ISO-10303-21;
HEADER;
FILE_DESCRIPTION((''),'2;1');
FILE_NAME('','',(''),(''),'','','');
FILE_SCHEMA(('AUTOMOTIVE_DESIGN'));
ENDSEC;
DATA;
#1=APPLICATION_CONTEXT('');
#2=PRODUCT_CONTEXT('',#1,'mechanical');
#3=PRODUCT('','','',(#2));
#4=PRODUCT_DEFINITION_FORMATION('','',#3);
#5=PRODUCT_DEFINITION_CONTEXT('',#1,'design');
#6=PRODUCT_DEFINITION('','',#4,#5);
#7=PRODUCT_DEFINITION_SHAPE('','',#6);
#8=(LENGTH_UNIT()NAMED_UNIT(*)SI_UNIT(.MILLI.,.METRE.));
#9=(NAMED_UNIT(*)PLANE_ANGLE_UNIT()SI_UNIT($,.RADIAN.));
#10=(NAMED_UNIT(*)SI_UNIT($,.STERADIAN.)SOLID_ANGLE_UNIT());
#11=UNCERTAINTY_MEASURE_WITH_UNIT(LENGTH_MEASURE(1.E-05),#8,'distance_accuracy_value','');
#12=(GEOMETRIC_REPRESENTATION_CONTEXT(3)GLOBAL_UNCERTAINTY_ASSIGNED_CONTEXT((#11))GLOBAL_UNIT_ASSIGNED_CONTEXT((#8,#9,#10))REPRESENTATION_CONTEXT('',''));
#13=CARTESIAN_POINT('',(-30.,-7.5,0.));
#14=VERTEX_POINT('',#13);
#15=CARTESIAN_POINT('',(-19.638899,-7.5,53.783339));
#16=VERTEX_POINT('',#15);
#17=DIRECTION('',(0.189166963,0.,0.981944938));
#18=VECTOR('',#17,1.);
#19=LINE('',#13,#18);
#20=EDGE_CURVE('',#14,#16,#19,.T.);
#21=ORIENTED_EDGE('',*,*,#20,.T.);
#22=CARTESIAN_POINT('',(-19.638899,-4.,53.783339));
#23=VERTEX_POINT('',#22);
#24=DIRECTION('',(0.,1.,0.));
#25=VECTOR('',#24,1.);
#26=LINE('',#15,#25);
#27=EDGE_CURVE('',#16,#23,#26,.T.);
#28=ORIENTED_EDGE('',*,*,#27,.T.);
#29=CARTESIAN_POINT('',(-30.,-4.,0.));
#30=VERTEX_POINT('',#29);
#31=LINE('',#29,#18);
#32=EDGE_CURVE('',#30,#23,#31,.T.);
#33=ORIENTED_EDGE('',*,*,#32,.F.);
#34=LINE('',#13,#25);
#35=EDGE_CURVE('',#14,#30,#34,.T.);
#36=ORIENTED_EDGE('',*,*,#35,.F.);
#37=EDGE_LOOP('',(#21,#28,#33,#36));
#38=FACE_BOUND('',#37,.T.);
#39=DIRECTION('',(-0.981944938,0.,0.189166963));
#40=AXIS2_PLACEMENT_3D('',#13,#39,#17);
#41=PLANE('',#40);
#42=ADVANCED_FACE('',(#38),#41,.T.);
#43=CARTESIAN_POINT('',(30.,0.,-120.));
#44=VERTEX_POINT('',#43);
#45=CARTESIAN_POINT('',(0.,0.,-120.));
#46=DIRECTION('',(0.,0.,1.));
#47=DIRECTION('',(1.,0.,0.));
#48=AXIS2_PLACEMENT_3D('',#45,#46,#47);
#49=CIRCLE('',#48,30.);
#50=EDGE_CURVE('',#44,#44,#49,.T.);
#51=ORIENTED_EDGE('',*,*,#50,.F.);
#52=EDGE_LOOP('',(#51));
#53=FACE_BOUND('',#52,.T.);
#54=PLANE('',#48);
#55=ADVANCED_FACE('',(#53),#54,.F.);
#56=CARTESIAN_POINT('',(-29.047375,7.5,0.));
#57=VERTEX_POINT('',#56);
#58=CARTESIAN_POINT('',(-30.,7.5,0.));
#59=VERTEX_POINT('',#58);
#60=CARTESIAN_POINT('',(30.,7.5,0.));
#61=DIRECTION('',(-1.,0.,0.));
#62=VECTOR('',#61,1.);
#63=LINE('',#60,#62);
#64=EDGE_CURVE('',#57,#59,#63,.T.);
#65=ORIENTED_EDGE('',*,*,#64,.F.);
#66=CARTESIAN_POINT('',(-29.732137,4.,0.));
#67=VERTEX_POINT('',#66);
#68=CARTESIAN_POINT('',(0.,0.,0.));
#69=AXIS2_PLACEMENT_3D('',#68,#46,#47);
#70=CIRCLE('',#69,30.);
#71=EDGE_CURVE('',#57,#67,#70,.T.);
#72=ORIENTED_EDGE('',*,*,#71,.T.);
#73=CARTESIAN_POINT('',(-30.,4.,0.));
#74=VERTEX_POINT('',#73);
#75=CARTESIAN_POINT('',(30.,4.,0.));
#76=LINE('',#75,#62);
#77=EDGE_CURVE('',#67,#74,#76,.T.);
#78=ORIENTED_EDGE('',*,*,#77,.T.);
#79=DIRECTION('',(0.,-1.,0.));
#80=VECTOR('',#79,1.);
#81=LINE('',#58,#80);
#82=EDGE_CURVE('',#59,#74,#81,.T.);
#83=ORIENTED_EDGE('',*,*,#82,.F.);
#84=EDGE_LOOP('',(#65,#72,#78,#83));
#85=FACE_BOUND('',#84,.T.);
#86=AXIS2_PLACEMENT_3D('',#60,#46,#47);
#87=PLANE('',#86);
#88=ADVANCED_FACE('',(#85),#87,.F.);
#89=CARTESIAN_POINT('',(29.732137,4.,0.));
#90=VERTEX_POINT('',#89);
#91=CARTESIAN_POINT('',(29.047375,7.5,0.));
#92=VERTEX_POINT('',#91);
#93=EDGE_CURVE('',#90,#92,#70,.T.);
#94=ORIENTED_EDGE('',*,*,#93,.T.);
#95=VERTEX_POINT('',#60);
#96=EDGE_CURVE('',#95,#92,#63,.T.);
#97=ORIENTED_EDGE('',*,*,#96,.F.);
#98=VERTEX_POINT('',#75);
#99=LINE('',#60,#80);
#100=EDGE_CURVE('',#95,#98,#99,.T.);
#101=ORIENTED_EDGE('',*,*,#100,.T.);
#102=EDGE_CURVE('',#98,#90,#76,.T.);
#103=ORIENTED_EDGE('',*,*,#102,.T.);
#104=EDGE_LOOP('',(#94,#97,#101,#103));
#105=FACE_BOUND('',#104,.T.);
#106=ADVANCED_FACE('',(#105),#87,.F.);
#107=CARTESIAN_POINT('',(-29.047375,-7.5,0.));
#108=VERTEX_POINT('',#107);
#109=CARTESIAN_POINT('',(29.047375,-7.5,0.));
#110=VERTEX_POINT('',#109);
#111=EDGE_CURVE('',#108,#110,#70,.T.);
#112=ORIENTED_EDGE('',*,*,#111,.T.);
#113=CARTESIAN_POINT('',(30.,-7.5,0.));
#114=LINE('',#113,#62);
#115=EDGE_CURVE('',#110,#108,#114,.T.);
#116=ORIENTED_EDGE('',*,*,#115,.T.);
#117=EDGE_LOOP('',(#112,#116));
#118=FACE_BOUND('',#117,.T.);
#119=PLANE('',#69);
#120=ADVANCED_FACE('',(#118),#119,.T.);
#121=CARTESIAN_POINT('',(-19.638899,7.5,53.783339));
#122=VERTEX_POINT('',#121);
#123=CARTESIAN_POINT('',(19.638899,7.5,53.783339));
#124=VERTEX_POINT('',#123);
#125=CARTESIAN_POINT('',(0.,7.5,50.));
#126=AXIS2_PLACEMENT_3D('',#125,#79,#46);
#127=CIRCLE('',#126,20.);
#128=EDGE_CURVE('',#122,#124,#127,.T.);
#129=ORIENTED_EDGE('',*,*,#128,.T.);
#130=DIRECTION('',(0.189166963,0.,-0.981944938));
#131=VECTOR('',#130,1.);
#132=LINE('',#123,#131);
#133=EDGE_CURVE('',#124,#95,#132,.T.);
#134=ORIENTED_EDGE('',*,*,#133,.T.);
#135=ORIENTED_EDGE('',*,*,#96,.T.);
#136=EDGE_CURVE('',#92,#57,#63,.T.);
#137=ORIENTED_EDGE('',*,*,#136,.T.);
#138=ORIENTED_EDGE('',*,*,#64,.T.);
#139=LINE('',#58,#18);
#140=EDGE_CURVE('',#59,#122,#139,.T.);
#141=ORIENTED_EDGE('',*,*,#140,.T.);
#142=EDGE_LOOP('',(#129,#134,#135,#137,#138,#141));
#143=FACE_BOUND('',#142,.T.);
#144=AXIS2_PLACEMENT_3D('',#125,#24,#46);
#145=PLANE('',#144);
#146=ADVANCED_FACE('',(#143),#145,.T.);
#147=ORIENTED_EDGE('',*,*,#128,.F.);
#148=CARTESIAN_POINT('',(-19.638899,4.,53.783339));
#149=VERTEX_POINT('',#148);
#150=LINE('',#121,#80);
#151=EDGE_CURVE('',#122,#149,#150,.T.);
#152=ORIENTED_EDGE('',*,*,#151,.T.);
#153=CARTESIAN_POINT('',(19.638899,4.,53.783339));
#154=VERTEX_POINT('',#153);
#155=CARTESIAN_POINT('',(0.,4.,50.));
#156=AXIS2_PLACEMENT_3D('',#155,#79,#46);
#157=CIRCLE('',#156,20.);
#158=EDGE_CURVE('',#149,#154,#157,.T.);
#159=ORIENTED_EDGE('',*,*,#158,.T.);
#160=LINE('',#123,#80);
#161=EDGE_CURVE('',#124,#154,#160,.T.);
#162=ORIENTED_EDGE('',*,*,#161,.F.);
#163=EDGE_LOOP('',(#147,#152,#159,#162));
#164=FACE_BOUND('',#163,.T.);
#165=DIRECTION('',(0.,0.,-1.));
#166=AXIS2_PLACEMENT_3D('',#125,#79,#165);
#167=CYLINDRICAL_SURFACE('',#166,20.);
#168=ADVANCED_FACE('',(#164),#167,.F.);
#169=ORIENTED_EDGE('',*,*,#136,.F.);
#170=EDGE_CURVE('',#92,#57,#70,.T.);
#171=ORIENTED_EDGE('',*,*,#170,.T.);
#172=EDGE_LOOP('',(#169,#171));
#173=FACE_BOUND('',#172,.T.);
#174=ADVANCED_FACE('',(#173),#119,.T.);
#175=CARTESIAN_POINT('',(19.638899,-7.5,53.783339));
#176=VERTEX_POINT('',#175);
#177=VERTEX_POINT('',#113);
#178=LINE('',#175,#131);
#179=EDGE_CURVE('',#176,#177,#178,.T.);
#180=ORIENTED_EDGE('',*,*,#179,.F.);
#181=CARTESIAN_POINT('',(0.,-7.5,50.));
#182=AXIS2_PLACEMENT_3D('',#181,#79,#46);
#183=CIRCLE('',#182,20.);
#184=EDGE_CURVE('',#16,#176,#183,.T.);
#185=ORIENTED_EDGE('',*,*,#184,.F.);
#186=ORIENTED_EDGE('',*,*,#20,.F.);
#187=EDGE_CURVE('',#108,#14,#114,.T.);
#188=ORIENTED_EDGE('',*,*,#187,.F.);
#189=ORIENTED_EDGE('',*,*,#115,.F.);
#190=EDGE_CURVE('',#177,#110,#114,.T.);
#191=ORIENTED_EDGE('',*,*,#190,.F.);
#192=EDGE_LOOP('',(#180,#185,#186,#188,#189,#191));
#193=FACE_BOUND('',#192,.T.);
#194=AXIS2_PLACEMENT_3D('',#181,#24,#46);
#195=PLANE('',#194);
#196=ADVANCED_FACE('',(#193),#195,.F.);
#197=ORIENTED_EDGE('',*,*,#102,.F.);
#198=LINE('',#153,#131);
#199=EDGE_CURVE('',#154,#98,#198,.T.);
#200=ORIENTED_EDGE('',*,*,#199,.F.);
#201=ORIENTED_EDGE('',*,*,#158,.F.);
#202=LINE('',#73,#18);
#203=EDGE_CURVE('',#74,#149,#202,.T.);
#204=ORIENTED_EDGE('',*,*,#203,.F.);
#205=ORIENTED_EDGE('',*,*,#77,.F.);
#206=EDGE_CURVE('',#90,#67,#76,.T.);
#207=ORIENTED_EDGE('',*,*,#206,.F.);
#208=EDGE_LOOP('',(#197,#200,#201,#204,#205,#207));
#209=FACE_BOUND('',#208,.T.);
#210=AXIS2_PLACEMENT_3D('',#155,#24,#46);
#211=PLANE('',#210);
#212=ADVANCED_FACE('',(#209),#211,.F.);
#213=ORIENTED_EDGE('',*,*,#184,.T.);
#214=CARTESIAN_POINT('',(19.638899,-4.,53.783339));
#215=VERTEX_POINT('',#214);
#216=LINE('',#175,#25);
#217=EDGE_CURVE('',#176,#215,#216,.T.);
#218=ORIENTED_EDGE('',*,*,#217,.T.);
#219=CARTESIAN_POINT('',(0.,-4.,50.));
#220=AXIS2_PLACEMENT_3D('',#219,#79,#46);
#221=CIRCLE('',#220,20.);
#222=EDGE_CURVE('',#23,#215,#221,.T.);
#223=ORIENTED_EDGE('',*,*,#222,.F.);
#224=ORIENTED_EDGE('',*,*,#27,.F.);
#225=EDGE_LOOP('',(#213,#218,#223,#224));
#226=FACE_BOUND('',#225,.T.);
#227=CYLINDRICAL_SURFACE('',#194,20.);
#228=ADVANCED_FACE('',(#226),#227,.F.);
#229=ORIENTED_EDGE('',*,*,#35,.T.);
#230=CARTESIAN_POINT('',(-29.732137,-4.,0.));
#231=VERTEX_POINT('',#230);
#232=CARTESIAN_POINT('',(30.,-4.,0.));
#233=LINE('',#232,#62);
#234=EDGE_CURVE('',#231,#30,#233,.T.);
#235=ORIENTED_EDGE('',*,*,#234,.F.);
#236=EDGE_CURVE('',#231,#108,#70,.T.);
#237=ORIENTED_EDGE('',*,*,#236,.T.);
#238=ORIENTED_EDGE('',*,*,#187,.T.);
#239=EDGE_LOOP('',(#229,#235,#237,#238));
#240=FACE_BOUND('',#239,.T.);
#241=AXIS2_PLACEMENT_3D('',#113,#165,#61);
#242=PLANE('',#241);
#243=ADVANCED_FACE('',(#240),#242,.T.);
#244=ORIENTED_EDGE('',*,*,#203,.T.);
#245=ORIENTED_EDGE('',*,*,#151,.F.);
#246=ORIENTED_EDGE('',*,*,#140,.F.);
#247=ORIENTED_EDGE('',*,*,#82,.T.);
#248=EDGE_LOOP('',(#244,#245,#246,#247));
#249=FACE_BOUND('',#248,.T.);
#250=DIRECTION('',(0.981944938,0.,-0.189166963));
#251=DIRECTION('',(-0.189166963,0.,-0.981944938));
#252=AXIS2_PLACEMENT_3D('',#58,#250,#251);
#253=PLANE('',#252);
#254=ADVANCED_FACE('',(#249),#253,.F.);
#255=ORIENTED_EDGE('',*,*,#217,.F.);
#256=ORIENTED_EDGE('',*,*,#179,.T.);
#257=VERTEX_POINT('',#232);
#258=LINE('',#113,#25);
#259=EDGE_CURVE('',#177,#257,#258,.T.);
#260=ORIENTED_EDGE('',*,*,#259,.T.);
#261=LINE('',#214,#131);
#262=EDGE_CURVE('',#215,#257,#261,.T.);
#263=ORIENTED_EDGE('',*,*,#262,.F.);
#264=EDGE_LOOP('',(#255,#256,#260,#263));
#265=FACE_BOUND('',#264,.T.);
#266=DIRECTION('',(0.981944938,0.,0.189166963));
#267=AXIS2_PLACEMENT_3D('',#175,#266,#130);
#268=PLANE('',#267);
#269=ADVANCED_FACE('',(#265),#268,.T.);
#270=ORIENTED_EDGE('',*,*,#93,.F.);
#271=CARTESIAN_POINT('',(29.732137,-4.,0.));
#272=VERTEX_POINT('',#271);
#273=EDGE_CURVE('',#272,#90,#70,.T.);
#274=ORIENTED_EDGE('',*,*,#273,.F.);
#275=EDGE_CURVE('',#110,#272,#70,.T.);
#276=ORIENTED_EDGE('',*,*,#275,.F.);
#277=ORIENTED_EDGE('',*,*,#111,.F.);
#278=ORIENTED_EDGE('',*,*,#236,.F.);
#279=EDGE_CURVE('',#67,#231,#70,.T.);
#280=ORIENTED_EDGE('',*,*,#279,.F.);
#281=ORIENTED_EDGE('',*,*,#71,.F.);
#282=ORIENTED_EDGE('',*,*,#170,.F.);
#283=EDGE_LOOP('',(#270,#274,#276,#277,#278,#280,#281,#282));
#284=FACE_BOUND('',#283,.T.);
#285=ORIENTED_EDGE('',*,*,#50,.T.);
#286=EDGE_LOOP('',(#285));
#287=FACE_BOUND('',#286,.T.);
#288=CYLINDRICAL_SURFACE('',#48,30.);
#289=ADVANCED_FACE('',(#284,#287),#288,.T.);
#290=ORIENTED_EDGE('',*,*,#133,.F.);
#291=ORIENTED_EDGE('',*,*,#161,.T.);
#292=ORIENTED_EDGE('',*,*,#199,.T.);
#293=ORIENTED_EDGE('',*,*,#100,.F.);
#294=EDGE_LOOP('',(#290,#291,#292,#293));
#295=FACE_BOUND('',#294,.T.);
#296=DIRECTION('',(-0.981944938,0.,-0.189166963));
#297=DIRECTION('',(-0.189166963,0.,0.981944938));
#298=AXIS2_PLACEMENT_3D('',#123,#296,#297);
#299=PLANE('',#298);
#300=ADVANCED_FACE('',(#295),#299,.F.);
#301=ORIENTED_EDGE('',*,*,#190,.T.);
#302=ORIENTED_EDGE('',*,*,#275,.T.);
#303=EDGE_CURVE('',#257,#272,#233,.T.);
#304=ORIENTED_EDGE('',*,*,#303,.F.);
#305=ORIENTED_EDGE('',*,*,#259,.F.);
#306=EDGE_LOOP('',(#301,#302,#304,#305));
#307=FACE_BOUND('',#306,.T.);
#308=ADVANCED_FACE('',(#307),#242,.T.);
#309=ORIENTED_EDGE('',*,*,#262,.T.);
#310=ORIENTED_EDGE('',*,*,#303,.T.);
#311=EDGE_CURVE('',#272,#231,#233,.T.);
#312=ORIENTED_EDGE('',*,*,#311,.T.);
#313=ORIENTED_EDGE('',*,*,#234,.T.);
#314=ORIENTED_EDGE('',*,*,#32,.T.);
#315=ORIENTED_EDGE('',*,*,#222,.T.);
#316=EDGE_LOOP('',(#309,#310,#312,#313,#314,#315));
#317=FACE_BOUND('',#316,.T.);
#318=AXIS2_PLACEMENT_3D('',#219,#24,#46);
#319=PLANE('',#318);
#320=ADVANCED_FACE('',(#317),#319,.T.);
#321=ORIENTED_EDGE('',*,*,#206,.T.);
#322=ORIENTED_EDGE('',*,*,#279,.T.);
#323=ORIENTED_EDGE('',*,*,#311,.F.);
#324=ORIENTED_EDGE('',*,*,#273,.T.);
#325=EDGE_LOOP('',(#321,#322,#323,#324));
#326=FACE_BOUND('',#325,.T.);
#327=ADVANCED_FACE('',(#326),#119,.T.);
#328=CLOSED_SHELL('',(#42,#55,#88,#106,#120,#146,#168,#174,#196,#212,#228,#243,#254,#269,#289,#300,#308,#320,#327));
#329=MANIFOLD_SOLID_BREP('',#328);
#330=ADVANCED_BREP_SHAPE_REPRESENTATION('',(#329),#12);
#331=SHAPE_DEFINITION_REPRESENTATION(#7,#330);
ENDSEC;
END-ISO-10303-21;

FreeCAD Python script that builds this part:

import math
import FreeCAD as App
import Part
import Sketcher
Q = App.Units.Quantity

doc = App.newDocument("Part")
body = doc.addObject("PartDesign::Body", "Body")

sketch1 = doc.addObject("Sketcher::SketchObject", "Sketch")
body.addObject(sketch1)
sketch1.AttachmentSupport = (doc.XY_Plane, [""])
sketch1.MapMode = "FlatFace"
sketch1.addGeometry(Part.Circle(App.Vector(0, 0, 0), App.Vector(0, 0, 1), 30), False)
sketch1.addConstraint(Sketcher.Constraint("Coincident", 0, 3, -1, 1))
sketch1.addConstraint(Sketcher.Constraint("Diameter", 0, Q("60 mm")))
pad1 = doc.addObject("PartDesign::Pad", "Pad")
body.addObject(pad1)
pad1.Profile = sketch1
pad1.Length = 120
pad1.Reversed = True

sketch2 = doc.addObject("Sketcher::SketchObject", "Sketch001")
body.addObject(sketch2)
sketch2.AttachmentSupport = (doc.XZ_Plane, [""])
sketch2.MapMode = "FlatFace"
sketch2.AttachmentOffset = App.Placement(App.Vector(0, 0, -4), App.Rotation())
sketch2.addGeometry(Part.LineSegment(App.Vector(19.638899, 53.783339, 0), App.Vector(30, 0, 0)), False)
sketch2.addGeometry(Part.LineSegment(App.Vector(30, 0, 0), App.Vector(-30, 0, 0)), False)
sketch2.addGeometry(Part.LineSegment(App.Vector(-30, 0, 0), App.Vector(-19.638899, 53.783339, 0)), False)
sketch2.addGeometry(Part.ArcOfCircle(Part.Circle(App.Vector(0, 50, 0), App.Vector(0, 0, 1), 20), math.radians(169.095827), math.radians(370.904173)), False)
sketch2.addConstraint(Sketcher.Constraint("Coincident", 0, 2, 1, 1))
sketch2.addConstraint(Sketcher.Constraint("Coincident", 1, 2, 2, 1))
sketch2.addConstraint(Sketcher.Constraint("Tangent", 2, 2, 3, 1))
sketch2.addConstraint(Sketcher.Constraint("Tangent", 3, 2, 0, 1))
sketch2.addConstraint(Sketcher.Constraint("Horizontal", 1))
sketch2.addConstraint(Sketcher.Constraint("Symmetric", 0, 2, 1, 2, -1, 1))
sketch2.addConstraint(Sketcher.Constraint("PointOnObject", 3, 3, -2))
sketch2.addConstraint(Sketcher.Constraint("Radius", 3, Q("20 mm")))
sketch2.addConstraint(Sketcher.Constraint("DistanceX", 1, 2, 1, 1, Q("60 mm")))
sketch2.addConstraint(Sketcher.Constraint("DistanceY", -1, 1, 3, 3, Q("50 mm")))
pad2 = doc.addObject("PartDesign::Pad", "Pad001")
body.addObject(pad2)
pad2.Profile = sketch2
pad2.Length = 3.5
pad2.Reversed = True

sketch3 = doc.addObject("Sketcher::SketchObject", "Sketch002")
body.addObject(sketch3)
sketch3.AttachmentSupport = (doc.XZ_Plane, [""])
sketch3.MapMode = "FlatFace"
sketch3.AttachmentOffset = App.Placement(App.Vector(0, 0, 7.5), App.Rotation())
sketch3.addGeometry(Part.LineSegment(App.Vector(19.638899, 53.783339, 0), App.Vector(30, 0, 0)), False)
sketch3.addGeometry(Part.LineSegment(App.Vector(30, 0, 0), App.Vector(-30, 0, 0)), False)
sketch3.addGeometry(Part.LineSegment(App.Vector(-30, 0, 0), App.Vector(-19.638899, 53.783339, 0)), False)
sketch3.addGeometry(Part.ArcOfCircle(Part.Circle(App.Vector(0, 50, 0), App.Vector(0, 0, 1), 20), math.radians(169.095827), math.radians(370.904173)), False)
sketch3.addConstraint(Sketcher.Constraint("Coincident", 0, 2, 1, 1))
sketch3.addConstraint(Sketcher.Constraint("Coincident", 1, 2, 2, 1))
sketch3.addConstraint(Sketcher.Constraint("Tangent", 2, 2, 3, 1))
sketch3.addConstraint(Sketcher.Constraint("Tangent", 3, 2, 0, 1))
sketch3.addConstraint(Sketcher.Constraint("Horizontal", 1))
sketch3.addConstraint(Sketcher.Constraint("Symmetric", 0, 2, 1, 2, -1, 1))
sketch3.addConstraint(Sketcher.Constraint("PointOnObject", 3, 3, -2))
sketch3.addConstraint(Sketcher.Constraint("Radius", 3, Q("20 mm")))
sketch3.addConstraint(Sketcher.Constraint("DistanceX", 1, 2, 1, 1, Q("60 mm")))
sketch3.addConstraint(Sketcher.Constraint("DistanceY", -1, 1, 3, 3, Q("50 mm")))
pad3 = doc.addObject("PartDesign::Pad", "Pad002")
body.addObject(pad3)
pad3.Profile = sketch3
pad3.Length = 3.5
pad3.Reversed = True

doc.recompute()
